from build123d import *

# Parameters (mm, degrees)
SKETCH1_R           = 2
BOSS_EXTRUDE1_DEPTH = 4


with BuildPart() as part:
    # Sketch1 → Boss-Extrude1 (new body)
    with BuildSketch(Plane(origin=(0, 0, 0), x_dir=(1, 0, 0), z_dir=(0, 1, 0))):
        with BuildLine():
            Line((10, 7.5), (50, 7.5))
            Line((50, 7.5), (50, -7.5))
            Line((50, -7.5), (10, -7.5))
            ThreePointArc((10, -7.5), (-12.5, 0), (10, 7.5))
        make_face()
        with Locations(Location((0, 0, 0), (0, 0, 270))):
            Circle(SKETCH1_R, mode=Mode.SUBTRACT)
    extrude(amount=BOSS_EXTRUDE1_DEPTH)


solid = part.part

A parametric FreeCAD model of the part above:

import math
import FreeCAD as App
import Part
import Sketcher
from FreeCAD import Vector

doc = App.newDocument("Part")
params = doc.addObject("Spreadsheet::Sheet", "Params")
for row, (alias, value) in enumerate([
    ("sketch1_diameter", "4 mm"),
    ("sketch1_radius", "12.5 mm"),
    ("sketch1_width", "40 mm"),
    ("sketch1_height", "15 mm"),
    ("pad1_length", "4 mm"),
], start=1):
    params.set(f"A{row}", alias)
    params.set(f"B{row}", "=" + value)
    params.setAlias(f"B{row}", alias)

body = doc.addObject("PartDesign::Body", "Body")

sketch1 = body.newObject("Sketcher::SketchObject", "Sketch")
sketch1.AttachmentSupport = (doc.getObject("XZ_Plane"), [""])
sketch1.MapMode = "FlatFace"
sketch1.addGeometry([
    Part.LineSegment(Vector(50, -7.5, 0), Vector(10, -7.5, 0)),
    Part.ArcOfCircle(Part.Circle(Vector(0, 0, 0), Vector(0, 0, 1), 12.5), math.radians(36.869898), math.radians(323.130102)),
    Part.LineSegment(Vector(10, 7.5, 0), Vector(50, 7.5, 0)),
    Part.LineSegment(Vector(50, 7.5, 0), Vector(50, -7.5, 0)),
    Part.Circle(Vector(0, 0, 0), Vector(0, 0, 1), 2),
], False)
sketch1.addConstraint([
    Sketcher.Constraint("Coincident", 0, 2, 1, 2),
    Sketcher.Constraint("Coincident", 1, 1, 2, 1),
    Sketcher.Constraint("Coincident", 2, 2, 3, 1),
    Sketcher.Constraint("Coincident", 3, 2, 0, 1),
    Sketcher.Constraint("Horizontal", 0),
    Sketcher.Constraint("Horizontal", 2),
    Sketcher.Constraint("Vertical", 3),
    Sketcher.Constraint("Coincident", 1, 3, -1, 1),
    Sketcher.Constraint("Coincident", 4, 3, -1, 1),
    Sketcher.Constraint("Vertical", 0, 2, 1, 1),
    Sketcher.Constraint("Diameter", 4, 4.0),
    Sketcher.Constraint("Radius", 1, 12.5),
    Sketcher.Constraint("DistanceX", 0, 2, 0, 1, 40.0),
    Sketcher.Constraint("DistanceY", 3, 2, 3, 1, 15.0),
])
sketch1.setExpression("Constraints[10]", "Params.sketch1_diameter")
sketch1.setExpression("Constraints[11]", "Params.sketch1_radius")
sketch1.setExpression("Constraints[12]", "Params.sketch1_width")
sketch1.setExpression("Constraints[13]", "Params.sketch1_height")
pad1 = body.newObject("PartDesign::Pad", "Pad")
pad1.Profile = sketch1
pad1.setExpression("Length", "Params.pad1_length")
pad1.Reversed = True

doc.recompute()
